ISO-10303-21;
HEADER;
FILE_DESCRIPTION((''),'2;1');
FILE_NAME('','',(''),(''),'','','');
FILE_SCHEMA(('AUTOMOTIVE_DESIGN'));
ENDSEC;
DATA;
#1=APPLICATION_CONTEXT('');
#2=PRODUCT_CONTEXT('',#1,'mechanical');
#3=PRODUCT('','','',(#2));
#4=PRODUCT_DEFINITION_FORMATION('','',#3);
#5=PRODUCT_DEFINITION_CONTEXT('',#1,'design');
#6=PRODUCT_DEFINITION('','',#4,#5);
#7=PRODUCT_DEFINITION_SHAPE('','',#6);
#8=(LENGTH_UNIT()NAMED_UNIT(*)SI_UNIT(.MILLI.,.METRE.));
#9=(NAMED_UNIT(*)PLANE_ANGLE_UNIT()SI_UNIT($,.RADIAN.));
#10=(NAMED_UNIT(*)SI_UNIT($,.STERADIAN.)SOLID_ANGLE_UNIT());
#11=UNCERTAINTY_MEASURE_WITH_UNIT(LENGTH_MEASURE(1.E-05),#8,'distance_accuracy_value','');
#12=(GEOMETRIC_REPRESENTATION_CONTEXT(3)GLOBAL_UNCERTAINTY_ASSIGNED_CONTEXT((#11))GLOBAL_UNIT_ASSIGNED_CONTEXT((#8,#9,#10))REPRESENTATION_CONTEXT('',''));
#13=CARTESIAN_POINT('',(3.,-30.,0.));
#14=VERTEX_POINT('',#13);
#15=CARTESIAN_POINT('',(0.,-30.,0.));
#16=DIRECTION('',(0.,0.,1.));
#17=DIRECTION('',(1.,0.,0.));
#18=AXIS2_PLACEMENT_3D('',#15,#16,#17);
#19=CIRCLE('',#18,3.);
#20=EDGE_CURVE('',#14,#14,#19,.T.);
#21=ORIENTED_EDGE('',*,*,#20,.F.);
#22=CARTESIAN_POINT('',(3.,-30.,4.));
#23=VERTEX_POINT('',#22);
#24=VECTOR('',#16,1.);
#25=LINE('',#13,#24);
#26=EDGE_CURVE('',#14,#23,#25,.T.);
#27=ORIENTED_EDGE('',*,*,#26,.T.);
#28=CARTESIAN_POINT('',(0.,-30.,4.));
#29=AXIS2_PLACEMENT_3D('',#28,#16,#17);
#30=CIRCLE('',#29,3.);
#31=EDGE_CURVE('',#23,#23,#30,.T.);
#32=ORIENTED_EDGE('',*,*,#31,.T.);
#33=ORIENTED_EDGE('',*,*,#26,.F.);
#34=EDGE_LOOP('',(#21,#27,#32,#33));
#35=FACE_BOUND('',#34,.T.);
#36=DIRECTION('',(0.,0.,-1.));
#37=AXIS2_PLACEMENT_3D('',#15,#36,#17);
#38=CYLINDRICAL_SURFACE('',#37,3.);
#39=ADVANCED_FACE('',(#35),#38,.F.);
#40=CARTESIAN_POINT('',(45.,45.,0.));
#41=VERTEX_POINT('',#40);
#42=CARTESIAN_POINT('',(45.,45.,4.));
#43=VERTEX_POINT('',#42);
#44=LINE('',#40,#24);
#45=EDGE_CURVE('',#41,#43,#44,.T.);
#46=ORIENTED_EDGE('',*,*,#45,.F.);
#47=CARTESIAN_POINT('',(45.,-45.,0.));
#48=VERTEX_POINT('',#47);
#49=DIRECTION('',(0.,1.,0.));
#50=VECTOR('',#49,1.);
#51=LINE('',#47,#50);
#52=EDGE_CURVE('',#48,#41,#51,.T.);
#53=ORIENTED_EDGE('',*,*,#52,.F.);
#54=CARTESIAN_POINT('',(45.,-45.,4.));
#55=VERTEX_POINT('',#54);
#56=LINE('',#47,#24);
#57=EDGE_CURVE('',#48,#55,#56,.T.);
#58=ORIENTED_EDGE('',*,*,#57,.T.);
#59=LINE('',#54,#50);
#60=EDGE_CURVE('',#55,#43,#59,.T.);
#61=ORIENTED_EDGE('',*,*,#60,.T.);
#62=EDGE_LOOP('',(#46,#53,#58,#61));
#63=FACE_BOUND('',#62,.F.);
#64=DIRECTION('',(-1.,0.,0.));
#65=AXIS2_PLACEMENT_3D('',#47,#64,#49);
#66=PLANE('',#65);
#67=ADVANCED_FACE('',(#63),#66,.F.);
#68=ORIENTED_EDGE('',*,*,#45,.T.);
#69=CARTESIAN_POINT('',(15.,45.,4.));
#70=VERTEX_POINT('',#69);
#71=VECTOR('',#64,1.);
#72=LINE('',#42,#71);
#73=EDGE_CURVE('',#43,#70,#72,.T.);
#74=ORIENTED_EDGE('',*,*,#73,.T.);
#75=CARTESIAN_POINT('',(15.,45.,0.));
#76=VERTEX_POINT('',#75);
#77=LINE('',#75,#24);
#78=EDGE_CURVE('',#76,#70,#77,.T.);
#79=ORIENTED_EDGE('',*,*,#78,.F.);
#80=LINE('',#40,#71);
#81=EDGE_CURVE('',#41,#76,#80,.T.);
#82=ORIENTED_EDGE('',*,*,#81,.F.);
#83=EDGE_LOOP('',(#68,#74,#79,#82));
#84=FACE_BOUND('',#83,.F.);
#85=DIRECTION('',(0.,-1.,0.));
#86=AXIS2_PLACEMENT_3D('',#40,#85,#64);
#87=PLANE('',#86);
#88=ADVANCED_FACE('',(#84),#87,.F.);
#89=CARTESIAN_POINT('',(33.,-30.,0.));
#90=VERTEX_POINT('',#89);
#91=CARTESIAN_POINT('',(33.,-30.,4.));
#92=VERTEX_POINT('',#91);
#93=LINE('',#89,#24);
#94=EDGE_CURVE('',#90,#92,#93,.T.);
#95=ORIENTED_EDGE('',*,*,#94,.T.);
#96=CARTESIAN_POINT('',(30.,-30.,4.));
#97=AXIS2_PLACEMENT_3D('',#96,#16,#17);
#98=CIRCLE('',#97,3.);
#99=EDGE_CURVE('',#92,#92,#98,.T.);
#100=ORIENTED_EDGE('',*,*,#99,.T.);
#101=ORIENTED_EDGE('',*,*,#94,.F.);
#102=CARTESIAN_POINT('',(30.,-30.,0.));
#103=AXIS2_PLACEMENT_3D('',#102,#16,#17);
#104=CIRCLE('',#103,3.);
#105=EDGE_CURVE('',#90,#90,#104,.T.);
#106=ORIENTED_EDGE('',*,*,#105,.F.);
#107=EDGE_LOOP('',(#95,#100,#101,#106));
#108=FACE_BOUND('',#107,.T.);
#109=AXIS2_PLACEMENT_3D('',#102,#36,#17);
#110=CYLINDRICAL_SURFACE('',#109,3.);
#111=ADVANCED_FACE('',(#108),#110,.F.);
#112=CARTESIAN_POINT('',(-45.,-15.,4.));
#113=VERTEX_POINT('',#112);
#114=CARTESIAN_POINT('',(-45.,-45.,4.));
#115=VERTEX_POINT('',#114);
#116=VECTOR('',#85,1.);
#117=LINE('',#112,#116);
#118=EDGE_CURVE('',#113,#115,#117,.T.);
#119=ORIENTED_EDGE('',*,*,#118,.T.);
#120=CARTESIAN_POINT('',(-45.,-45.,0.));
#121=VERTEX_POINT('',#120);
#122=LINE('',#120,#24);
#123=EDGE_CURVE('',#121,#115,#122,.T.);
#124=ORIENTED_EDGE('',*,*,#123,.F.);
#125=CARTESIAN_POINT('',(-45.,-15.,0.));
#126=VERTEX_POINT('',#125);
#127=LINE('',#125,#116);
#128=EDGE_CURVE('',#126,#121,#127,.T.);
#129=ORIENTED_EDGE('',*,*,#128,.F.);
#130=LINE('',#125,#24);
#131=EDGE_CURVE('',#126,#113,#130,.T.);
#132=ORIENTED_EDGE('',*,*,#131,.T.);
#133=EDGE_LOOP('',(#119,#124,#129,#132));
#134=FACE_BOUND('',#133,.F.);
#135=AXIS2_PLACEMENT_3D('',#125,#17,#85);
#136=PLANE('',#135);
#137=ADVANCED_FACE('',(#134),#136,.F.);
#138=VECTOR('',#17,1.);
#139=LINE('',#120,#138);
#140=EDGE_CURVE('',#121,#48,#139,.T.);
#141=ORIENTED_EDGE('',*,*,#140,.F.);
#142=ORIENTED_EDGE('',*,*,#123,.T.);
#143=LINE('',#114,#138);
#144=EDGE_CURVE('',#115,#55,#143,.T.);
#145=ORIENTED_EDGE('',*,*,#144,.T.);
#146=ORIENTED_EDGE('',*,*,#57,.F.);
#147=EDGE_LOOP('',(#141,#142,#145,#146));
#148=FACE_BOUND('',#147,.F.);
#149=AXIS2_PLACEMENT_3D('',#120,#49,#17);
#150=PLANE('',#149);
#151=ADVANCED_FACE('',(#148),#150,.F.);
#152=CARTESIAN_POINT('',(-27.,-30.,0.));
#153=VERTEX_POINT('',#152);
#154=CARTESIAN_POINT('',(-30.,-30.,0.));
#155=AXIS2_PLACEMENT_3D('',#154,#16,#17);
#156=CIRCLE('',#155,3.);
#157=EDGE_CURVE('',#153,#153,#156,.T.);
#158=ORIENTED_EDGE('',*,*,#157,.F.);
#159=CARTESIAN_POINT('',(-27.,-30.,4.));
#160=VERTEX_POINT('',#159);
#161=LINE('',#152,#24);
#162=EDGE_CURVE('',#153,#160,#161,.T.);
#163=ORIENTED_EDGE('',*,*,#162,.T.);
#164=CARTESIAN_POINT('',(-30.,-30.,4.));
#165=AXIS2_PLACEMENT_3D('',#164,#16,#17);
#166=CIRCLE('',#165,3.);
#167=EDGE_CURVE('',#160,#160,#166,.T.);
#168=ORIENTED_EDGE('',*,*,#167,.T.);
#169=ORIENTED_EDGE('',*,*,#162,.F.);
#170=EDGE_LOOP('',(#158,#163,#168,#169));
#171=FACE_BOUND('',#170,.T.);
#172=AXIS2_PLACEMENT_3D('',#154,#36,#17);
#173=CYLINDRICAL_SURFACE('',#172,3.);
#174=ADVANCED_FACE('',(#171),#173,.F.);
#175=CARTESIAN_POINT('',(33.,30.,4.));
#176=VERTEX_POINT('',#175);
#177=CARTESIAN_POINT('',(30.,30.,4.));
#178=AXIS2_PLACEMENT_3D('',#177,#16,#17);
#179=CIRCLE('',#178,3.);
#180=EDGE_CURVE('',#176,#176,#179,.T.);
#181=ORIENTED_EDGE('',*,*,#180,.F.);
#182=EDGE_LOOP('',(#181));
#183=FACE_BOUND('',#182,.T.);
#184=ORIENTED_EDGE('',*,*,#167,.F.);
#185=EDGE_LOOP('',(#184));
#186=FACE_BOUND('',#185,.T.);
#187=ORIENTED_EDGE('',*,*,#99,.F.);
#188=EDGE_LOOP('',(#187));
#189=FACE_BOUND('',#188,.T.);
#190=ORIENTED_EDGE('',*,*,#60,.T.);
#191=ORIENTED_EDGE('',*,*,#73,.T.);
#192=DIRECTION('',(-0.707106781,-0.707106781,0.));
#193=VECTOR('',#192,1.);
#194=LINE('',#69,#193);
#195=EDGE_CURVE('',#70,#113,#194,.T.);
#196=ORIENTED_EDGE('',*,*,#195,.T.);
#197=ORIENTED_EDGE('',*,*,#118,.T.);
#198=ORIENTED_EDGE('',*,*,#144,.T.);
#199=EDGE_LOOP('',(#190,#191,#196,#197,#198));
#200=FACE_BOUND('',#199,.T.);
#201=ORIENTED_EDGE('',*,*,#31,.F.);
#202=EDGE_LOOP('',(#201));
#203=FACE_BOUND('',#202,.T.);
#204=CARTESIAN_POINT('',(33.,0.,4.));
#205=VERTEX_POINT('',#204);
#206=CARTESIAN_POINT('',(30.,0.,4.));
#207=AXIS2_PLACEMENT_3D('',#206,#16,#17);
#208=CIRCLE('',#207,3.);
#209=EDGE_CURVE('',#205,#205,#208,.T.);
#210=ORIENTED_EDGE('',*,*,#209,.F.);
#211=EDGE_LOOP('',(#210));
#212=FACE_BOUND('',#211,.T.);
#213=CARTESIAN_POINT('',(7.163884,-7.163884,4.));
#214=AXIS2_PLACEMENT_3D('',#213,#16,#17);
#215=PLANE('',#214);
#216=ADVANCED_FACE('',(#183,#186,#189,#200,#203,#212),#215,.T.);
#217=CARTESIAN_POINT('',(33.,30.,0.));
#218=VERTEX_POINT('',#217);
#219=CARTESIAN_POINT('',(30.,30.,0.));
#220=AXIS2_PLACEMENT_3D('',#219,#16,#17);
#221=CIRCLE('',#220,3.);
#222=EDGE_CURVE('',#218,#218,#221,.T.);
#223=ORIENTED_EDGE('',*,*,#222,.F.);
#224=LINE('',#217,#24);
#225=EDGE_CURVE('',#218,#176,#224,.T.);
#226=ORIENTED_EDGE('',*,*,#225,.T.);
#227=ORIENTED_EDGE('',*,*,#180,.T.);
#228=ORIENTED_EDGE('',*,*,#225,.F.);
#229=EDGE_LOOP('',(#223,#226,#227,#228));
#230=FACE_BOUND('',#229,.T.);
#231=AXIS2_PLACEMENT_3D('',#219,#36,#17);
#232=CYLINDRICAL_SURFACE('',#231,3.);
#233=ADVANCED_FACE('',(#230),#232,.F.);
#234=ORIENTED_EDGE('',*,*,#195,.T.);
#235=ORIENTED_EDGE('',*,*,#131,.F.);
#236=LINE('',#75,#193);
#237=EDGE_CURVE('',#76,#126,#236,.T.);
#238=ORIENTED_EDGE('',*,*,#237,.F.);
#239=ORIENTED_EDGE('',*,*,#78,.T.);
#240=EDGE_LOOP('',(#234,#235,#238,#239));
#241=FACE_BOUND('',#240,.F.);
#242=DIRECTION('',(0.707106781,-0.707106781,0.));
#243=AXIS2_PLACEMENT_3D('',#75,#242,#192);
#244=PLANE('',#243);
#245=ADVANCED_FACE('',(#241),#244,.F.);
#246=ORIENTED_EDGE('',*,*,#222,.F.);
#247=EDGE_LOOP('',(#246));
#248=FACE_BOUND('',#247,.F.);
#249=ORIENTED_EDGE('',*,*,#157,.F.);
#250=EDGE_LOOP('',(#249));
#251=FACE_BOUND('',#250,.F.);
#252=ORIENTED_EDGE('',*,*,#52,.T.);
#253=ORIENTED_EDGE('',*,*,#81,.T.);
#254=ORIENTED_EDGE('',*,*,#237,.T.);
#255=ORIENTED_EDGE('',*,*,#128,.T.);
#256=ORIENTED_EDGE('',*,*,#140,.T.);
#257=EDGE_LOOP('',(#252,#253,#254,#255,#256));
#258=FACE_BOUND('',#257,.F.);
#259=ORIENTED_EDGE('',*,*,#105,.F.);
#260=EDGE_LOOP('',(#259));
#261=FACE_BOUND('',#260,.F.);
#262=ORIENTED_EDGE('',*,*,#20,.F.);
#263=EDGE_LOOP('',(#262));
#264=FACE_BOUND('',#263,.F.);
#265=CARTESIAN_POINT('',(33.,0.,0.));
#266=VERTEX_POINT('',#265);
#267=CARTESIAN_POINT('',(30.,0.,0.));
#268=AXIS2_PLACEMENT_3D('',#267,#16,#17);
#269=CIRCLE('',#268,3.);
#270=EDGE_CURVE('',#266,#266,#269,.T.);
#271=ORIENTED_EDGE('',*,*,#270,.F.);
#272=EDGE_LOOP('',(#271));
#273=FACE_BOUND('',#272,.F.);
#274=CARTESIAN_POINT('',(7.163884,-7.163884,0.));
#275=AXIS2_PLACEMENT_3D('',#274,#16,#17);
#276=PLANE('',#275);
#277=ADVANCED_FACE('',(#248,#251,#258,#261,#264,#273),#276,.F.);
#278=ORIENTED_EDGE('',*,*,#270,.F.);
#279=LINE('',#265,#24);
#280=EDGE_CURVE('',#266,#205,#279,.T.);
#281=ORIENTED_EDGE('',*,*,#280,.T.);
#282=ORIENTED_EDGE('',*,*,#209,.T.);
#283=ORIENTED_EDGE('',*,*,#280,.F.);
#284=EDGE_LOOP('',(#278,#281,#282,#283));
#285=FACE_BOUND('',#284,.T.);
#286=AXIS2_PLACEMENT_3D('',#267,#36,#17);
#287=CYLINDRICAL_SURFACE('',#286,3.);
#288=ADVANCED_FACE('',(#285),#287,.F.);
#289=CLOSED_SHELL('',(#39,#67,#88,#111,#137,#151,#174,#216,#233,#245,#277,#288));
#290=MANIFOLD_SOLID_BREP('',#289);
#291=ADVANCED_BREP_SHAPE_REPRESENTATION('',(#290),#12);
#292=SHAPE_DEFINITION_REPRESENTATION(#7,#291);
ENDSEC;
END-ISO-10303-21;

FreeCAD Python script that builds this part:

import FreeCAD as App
import Part
import Sketcher
from FreeCAD import Vector

doc = App.newDocument("Part")
params = doc.addObject("Spreadsheet::Sheet", "Params")
for row, (alias, value) in enumerate([
    ("sketch1_diameter", "6 mm"),
    ("sketch1_width", "90 mm"),
    ("sketch1_width2", "30 mm"),
    ("pad1_length", "4 mm"),
], start=1):
    params.set(f"A{row}", alias)
    params.set(f"B{row}", "=" + value)
    params.setAlias(f"B{row}", alias)

body = doc.addObject("PartDesign::Body", "Body")

# Sketch on XY plane
sketch1 = doc.addObject("Sketcher::SketchObject", "Sketch")
body.addObject(sketch1)
sketch1.AttachmentSupport = (doc.XY_Plane, [""])
sketch1.MapMode = "FlatFace"
sketch1.addGeometry(Part.LineSegment(Vector(-45, -45, 0), Vector(45, -45, 0)), False)
sketch1.addGeometry(Part.LineSegment(Vector(45, -45, 0), Vector(45, 45, 0)), False)
sketch1.addGeometry(Part.LineSegment(Vector(45, 45, 0), Vector(15, 45, 0)), False)
sketch1.addGeometry(Part.LineSegment(Vector(15, 45, 0), Vector(-45, -15, 0)), False)
sketch1.addGeometry(Part.LineSegment(Vector(-45, -15, 0), Vector(-45, -45, 0)), False)
sketch1.addGeometry(Part.Circle(Vector(-30, -30, 0), Vector(0, 0, 1), 3), False)
sketch1.addGeometry(Part.Circle(Vector(0, -30, 0), Vector(0, 0, 1), 3), False)
sketch1.addGeometry(Part.Circle(Vector(30, -30, 0), Vector(0, 0, 1), 3), False)
sketch1.addGeometry(Part.Circle(Vector(30, 0, 0), Vector(0, 0, 1), 3), False)
sketch1.addGeometry(Part.Circle(Vector(30, 30, 0), Vector(0, 0, 1), 3), False)
sketch1.addConstraint(Sketcher.Constraint("Coincident", 0, 2, 1, 1))
sketch1.addConstraint(Sketcher.Constraint("Coincident", 1, 2, 2, 1))
sketch1.addConstraint(Sketcher.Constraint("Coincident", 2, 2, 3, 1))
sketch1.addConstraint(Sketcher.Constraint("Coincident", 3, 2, 4, 1))
sketch1.addConstraint(Sketcher.Constraint("Coincident", 4, 2, 0, 1))
sketch1.addConstraint(Sketcher.Constraint("Horizontal", 0))
sketch1.addConstraint(Sketcher.Constraint("Vertical", 1))
sketch1.addConstraint(Sketcher.Constraint("Horizontal", 2))
sketch1.addConstraint(Sketcher.Constraint("Vertical", 4))
sketch1.addConstraint(Sketcher.Constraint("Equal", 5, 6))
sketch1.addConstraint(Sketcher.Constraint("Equal", 6, 7))
sketch1.addConstraint(Sketcher.Constraint("Equal", 7, 8))
sketch1.addConstraint(Sketcher.Constraint("Equal", 8, 9))
sketch1.addConstraint(Sketcher.Constraint("Symmetric", 5, 3, 9, 3, -1, 1))
sketch1.addConstraint(Sketcher.Constraint("Symmetric", 1, 2, 4, 2, -1, 1))
sketch1.addConstraint(Sketcher.Constraint("Symmetric", 5, 3, 7, 3, -2))
sketch1.addConstraint(Sketcher.Constraint("PointOnObject", 6, 3, -2))
sketch1.addConstraint(Sketcher.Constraint("PointOnObject", 8, 3, -1))
sketch1.addConstraint(Sketcher.Constraint("Horizontal", 5, 3, 6, 3))
sketch1.addConstraint(Sketcher.Constraint("Vertical", 7, 3, 8, 3))
sketch1.addConstraint(Sketcher.Constraint("Equal", 0, 1))
sketch1.addConstraint(Sketcher.Constraint("Equal", 2, 4))
sketch1.addConstraint(Sketcher.Constraint("Diameter", 5, 6.0))
sketch1.addConstraint(Sketcher.Constraint("DistanceX", 0, 1, 0, 2, 90.0))
sketch1.addConstraint(Sketcher.Constraint("DistanceX", 2, 2, 2, 1, 30.0))
sketch1.addConstraint(Sketcher.Constraint("DistanceX", 5, 3, -1, 1, 30.0))
sketch1.addConstraint(Sketcher.Constraint("DistanceY", 5, 3, -1, 1, 30.0))
sketch1.setExpression("Constraints[22]", "Params.sketch1_diameter")
sketch1.setExpression("Constraints[23]", "Params.sketch1_width")
sketch1.setExpression("Constraints[24]", "Params.sketch1_width2")
pad1 = doc.addObject("PartDesign::Pad", "Pad")
body.addObject(pad1)
pad1.Profile = sketch1
pad1.setExpression("Length", "Params.pad1_length")

doc.recompute()
